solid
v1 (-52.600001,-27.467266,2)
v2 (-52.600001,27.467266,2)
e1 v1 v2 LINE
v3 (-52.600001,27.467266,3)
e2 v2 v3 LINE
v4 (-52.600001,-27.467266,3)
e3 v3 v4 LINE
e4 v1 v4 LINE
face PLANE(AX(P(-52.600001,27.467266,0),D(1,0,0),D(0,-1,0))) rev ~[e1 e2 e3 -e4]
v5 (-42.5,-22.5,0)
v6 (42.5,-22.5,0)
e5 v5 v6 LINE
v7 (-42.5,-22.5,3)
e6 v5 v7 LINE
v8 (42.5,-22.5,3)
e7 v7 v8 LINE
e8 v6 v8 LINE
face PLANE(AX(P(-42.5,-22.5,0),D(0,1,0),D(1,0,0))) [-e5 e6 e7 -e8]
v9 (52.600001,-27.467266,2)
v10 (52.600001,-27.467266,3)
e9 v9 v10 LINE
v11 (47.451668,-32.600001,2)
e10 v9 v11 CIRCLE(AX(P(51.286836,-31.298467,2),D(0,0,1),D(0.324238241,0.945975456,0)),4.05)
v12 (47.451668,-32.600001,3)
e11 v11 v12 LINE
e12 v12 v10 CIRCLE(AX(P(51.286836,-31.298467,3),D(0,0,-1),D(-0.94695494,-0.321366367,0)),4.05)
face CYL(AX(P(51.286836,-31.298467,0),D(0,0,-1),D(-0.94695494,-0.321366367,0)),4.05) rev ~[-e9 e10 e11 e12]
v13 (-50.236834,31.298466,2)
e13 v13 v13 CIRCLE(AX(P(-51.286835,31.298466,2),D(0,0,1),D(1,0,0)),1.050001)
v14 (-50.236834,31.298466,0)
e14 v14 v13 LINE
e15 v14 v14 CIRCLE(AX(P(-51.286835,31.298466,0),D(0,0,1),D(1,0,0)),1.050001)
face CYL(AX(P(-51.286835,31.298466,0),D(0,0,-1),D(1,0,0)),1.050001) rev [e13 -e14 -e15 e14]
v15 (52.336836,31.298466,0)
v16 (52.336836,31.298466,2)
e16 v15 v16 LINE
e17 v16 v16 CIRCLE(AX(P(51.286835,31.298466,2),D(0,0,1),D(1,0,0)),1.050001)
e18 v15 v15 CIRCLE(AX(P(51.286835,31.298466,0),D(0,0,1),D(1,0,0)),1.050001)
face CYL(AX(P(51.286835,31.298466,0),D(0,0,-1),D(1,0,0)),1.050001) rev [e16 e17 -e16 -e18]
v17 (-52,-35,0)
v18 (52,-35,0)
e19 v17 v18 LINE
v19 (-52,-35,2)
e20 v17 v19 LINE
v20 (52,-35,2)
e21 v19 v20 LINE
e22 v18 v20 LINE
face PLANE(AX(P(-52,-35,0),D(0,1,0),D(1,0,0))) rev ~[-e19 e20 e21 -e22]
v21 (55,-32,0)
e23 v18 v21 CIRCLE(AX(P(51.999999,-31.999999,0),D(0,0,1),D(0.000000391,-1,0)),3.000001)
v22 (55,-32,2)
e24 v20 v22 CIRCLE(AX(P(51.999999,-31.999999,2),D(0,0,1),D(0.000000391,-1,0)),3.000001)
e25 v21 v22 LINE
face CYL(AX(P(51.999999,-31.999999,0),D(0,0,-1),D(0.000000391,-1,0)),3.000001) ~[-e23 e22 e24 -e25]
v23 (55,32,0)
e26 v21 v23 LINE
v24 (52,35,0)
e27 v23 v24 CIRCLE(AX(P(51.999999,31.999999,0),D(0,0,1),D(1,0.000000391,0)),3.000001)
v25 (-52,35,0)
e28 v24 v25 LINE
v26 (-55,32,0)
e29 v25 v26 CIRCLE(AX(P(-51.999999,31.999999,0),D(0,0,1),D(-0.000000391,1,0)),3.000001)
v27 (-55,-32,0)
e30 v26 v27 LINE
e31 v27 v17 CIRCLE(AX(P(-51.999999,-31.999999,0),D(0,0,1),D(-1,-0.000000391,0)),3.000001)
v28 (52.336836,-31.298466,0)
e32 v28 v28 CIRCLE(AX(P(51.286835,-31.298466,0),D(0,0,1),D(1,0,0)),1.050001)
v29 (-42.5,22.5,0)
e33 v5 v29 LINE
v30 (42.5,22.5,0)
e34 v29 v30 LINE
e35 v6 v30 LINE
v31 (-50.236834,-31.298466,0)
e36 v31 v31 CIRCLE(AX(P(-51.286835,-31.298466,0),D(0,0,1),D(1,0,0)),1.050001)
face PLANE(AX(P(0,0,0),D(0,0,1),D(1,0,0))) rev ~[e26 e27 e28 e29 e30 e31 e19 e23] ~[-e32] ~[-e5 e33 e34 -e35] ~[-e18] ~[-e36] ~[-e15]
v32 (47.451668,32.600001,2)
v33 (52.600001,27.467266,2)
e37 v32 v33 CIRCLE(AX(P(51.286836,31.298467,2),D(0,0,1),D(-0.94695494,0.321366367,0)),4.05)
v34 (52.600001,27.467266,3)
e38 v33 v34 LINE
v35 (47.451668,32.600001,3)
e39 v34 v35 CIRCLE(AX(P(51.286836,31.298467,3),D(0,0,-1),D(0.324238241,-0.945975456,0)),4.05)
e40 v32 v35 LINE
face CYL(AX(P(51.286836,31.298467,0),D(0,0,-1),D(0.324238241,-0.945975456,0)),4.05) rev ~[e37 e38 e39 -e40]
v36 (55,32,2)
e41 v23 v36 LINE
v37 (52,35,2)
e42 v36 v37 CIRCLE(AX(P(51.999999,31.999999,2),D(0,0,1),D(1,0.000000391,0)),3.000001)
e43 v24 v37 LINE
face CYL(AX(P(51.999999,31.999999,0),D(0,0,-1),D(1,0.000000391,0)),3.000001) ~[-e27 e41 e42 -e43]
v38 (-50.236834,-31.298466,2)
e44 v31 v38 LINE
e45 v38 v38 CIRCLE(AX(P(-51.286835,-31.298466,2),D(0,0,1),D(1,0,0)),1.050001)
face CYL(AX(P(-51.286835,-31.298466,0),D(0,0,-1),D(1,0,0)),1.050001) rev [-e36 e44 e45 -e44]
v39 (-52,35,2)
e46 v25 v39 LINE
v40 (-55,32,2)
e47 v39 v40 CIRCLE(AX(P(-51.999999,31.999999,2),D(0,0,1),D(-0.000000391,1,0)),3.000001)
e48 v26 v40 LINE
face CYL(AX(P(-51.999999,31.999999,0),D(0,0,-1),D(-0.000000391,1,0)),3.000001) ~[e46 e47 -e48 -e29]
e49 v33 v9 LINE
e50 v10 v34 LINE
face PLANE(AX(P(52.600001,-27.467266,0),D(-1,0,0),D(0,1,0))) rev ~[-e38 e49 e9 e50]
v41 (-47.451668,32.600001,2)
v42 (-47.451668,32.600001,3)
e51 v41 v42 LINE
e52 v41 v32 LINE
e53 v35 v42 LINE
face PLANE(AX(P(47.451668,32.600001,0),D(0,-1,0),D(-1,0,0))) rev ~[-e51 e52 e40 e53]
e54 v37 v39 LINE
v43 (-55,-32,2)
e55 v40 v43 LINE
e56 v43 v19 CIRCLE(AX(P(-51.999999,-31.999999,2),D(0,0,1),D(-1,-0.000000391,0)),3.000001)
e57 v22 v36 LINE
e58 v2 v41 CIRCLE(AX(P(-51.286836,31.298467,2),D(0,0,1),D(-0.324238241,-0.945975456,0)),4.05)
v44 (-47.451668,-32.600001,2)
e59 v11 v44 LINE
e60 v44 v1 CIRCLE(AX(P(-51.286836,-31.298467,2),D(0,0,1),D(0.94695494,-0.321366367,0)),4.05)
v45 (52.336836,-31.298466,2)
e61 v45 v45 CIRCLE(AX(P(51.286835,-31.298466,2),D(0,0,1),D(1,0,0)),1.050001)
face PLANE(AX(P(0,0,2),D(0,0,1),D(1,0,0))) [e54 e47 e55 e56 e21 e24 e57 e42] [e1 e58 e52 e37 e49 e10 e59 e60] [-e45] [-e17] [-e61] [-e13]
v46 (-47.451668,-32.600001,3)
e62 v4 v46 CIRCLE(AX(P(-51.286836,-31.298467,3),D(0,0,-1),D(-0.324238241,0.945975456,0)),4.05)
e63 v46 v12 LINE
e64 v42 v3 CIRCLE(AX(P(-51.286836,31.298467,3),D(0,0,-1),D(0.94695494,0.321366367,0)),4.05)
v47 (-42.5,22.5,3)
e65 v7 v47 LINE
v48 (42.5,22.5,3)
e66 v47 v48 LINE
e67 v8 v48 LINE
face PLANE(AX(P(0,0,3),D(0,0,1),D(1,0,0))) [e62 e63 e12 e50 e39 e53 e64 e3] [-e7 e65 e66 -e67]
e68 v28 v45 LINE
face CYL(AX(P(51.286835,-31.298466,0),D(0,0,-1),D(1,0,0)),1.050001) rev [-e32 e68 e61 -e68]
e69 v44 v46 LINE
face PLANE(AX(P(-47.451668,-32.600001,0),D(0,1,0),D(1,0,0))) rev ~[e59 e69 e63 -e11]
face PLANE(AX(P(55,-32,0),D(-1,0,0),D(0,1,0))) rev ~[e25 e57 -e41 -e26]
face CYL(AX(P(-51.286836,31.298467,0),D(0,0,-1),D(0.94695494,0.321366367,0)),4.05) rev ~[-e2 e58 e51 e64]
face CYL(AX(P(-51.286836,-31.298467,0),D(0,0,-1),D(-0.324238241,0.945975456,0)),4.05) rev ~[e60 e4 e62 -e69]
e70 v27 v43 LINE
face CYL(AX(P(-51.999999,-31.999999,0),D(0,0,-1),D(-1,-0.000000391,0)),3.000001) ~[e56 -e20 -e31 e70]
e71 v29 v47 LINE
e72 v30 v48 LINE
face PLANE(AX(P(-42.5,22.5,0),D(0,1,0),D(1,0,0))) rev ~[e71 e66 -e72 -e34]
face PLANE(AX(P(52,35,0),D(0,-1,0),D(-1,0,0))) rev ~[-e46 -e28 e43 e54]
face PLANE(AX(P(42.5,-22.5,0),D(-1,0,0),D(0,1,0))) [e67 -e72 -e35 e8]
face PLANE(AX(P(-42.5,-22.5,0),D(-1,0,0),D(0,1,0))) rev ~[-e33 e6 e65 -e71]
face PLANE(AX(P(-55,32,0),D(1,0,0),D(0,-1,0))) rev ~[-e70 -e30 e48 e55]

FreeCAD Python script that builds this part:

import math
import FreeCAD as App
import Part
import Sketcher

V = App.Vector


def add_polygon(sketch, points):
    """Adds a closed chain of lines whose ends are joined by coincident constraints."""
    first, n = sketch.GeometryCount, len(points)
    for a, b in zip(points, points[1:] + points[:1]):
        sketch.addGeometry(Part.LineSegment(App.Vector(*a, 0), App.Vector(*b, 0)), False)
    for i in range(n):
        sketch.addConstraint(Sketcher.Constraint("Coincident", first + i, 2, first + (i + 1) % n, 1))

doc = App.newDocument("Part")
params = doc.addObject("Spreadsheet::Sheet", "Params")
for row, (alias, value) in enumerate([
    ("sketch1_radius", "3.000001 mm"),
    ("sketch1_diameter", "2.100002 mm"),
    ("sketch1_width", "104 mm"),
    ("sketch1_height", "64 mm"),
    ("sketch1_radius2", "4.05 mm"),
    ("pad1_length", "2 mm"),
    ("sketch2_width", "85 mm"),
    ("sketch2_height", "45 mm"),
    ("sketch2_radius", "4.05 mm"),
    ("pad2_length", "3 mm"),
], start=1):
    params.set(f"A{row}", alias)
    params.set(f"B{row}", "=" + value)
    params.setAlias(f"B{row}", alias)

body = doc.addObject("PartDesign::Body", "Body")

# Sketch on XY plane
sketch1 = body.newObject("Sketcher::SketchObject", "Sketch")
sketch1.AttachmentSupport = (doc.getObject("XY_Plane"), [""])
sketch1.MapMode = "FlatFace"
sketch1.addGeometry(Part.ArcOfCircle(Part.Circle(V(51.999999, 31.999999, 0), V(0, 0, 1), 3.000001), math.radians(0.000022), math.radians(89.999978)), False)
sketch1.addGeometry(Part.LineSegment(V(52, 35, 0), V(-52, 35, 0)), False)
sketch1.addGeometry(Part.ArcOfCircle(Part.Circle(V(-51.999999, 31.999999, 0), V(0, 0, 1), 3.000001), math.radians(90.000022), math.radians(179.999978)), False)
sketch1.addGeometry(Part.LineSegment(V(-55, 32, 0), V(-55, -32, 0)), False)
sketch1.addGeometry(Part.ArcOfCircle(Part.Circle(V(-51.999999, -31.999999, 0), V(0, 0, 1), 3.000001), math.radians(-179.999978), math.radians(-90.000022)), False)
sketch1.addGeometry(Part.LineSegment(V(-52, -35, 0), V(52, -35, 0)), False)
sketch1.addGeometry(Part.ArcOfCircle(Part.Circle(V(51.999999, -31.999999, 0), V(0, 0, 1), 3.000001), math.radians(-89.999978), math.radians(-0.000022)), False)
sketch1.addGeometry(Part.LineSegment(V(55, -32, 0), V(55, 32, 0)), False)
sketch1.addGeometry(Part.Circle(V(-51.286835, -31.298466, 0), V(0, 0, 1), 1.050001), False)
sketch1.addGeometry(Part.Circle(V(51.286835, -31.298466, 0), V(0, 0, 1), 1.050001), False)
sketch1.addGeometry(Part.Circle(V(-51.286835, 31.298466, 0), V(0, 0, 1), 1.050001), False)
sketch1.addGeometry(Part.LineSegment(V(-47.451668, 32.600001, 0), V(47.451668, 32.600001, 0)), False)
sketch1.addGeometry(Part.ArcOfCircle(Part.Circle(V(51.286836, 31.298467, 0), V(0, 0, 1), 4.05), math.radians(161.254423), math.radians(288.91943)), False)
sketch1.addGeometry(Part.LineSegment(V(52.600001, 27.467266, 0), V(52.600001, -27.467266, 0)), False)
sketch1.addGeometry(Part.ArcOfCircle(Part.Circle(V(51.286836, -31.298467, 0), V(0, 0, 1), 4.05), math.radians(71.08057), math.radians(198.745577)), False)
sketch1.addGeometry(Part.LineSegment(V(47.451668, -32.600001, 0), V(-47.451668, -32.600001, 0)), False)
sketch1.addGeometry(Part.ArcOfCircle(Part.Circle(V(-51.286836, -31.298467, 0), V(0, 0, 1), 4.05), math.radians(-18.745577), math.radians(108.91943)), False)
sketch1.addGeometry(Part.LineSegment(V(-52.600001, -27.467266, 0), V(-52.600001, 27.467266, 0)), False)
sketch1.addGeometry(Part.ArcOfCircle(Part.Circle(V(-51.286836, 31.298467, 0), V(0, 0, 1), 4.05), math.radians(-108.91943), math.radians(18.745577)), False)
sketch1.addGeometry(Part.Circle(V(51.286835, 31.298466, 0), V(0, 0, 1), 1.050001), False)
sketch1.addConstraint(Sketcher.Constraint("Tangent", 0, 2, 1, 1))
sketch1.addConstraint(Sketcher.Constraint("Tangent", 1, 2, 2, 1))
sketch1.addConstraint(Sketcher.Constraint("Tangent", 2, 2, 3, 1))
sketch1.addConstraint(Sketcher.Constraint("Tangent", 3, 2, 4, 1))
sketch1.addConstraint(Sketcher.Constraint("Tangent", 4, 2, 5, 1))
sketch1.addConstraint(Sketcher.Constraint("Tangent", 5, 2, 6, 1))
sketch1.addConstraint(Sketcher.Constraint("Tangent", 6, 2, 7, 1))
sketch1.addConstraint(Sketcher.Constraint("Tangent", 7, 2, 0, 1))
sketch1.addConstraint(Sketcher.Constraint("Coincident", 11, 2, 12, 1))
sketch1.addConstraint(Sketcher.Constraint("Coincident", 12, 2, 13, 1))
sketch1.addConstraint(Sketcher.Constraint("Coincident", 13, 2, 14, 1))
sketch1.addConstraint(Sketcher.Constraint("Coincident", 14, 2, 15, 1))
sketch1.addConstraint(Sketcher.Constraint("Coincident", 15, 2, 16, 1))
sketch1.addConstraint(Sketcher.Constraint("Coincident", 16, 2, 17, 1))
sketch1.addConstraint(Sketcher.Constraint("Coincident", 17, 2, 18, 1))
sketch1.addConstraint(Sketcher.Constraint("Coincident", 18, 2, 11, 1))
sketch1.addConstraint(Sketcher.Constraint("Horizontal", 1))
sketch1.addConstraint(Sketcher.Constraint("Vertical", 3))
sketch1.addConstraint(Sketcher.Constraint("Horizontal", 5))
sketch1.addConstraint(Sketcher.Constraint("Vertical", 7))
sketch1.addConstraint(Sketcher.Constraint("Horizontal", 11))
sketch1.addConstraint(Sketcher.Constraint("Vertical", 13))
sketch1.addConstraint(Sketcher.Constraint("Horizontal", 15))
sketch1.addConstraint(Sketcher.Constraint("Vertical", 17))
sketch1.addConstraint(Sketcher.Constraint("Coincident", 14, 3, 9, 3))
sketch1.addConstraint(Sketcher.Constraint("Coincident", 16, 3, 8, 3))
sketch1.addConstraint(Sketcher.Constraint("Coincident", 18, 3, 10, 3))
sketch1.addConstraint(Sketcher.Constraint("Coincident", 19, 3, 12, 3))
sketch1.addConstraint(Sketcher.Constraint("Equal", 0, 2))
sketch1.addConstraint(Sketcher.Constraint("Equal", 2, 4))
sketch1.addConstraint(Sketcher.Constraint("Equal", 4, 6))
sketch1.addConstraint(Sketcher.Constraint("Equal", 8, 9))
sketch1.addConstraint(Sketcher.Constraint("Equal", 9, 10))
sketch1.addConstraint(Sketcher.Constraint("Equal", 12, 14))
sketch1.addConstraint(Sketcher.Constraint("Equal", 14, 16))
sketch1.addConstraint(Sketcher.Constraint("Equal", 16, 18))
sketch1.addConstraint(Sketcher.Constraint("Equal", 10, 19))
sketch1.addConstraint(Sketcher.Constraint("Symmetric", 0, 3, 4, 3, -1, 1))
sketch1.addConstraint(Sketcher.Constraint("Symmetric", 9, 3, 10, 3, -1, 1))
sketch1.addConstraint(Sketcher.Constraint("Symmetric", 8, 3, 12, 3, -1, 1))
sketch1.addConstraint(Sketcher.Constraint("Symmetric", 8, 3, 9, 3, -2))
sketch1.addConstraint(Sketcher.Constraint("Horizontal", 13, 2, 16, 2))
sketch1.addConstraint(Sketcher.Constraint("Vertical", 11, 2, 14, 2))
sketch1.addConstraint(Sketcher.Constraint("Radius", 0, 3.000001))
sketch1.addConstraint(Sketcher.Constraint("Diameter", 8, 2.100002))
sketch1.addConstraint(Sketcher.Constraint("DistanceX", 1, 2, 1, 1, 104.0))
sketch1.addConstraint(Sketcher.Constraint("DistanceY", 3, 2, 3, 1, 64.0))
sketch1.addConstraint(Sketcher.Constraint("Radius", 12, 4.05))
sketch1.addConstraint(Sketcher.Constraint("DistanceY", -1, 1, 11, 2, 32.600001))
sketch1.addConstraint(Sketcher.Constraint("DistanceX", -1, 1, 12, 2, 52.600001))
sketch1.addConstraint(Sketcher.Constraint("DistanceY", 13, 2, 13, 1, 54.934532))
sketch1.addConstraint(Sketcher.Constraint("DistanceY", 12, 2, 19, 3, 3.8312))
sketch1.setExpression("Constraints[43]", "Params.sketch1_radius")
sketch1.setExpression("Constraints[44]", "Params.sketch1_diameter")
sketch1.setExpression("Constraints[45]", "Params.sketch1_width")
sketch1.setExpression("Constraints[46]", "Params.sketch1_height")
sketch1.setExpression("Constraints[47]", "Params.sketch1_radius2")
pad1 = body.newObject("PartDesign::Pad", "Pad")
pad1.Profile = sketch1
pad1.setExpression("Length", "Params.pad1_length")

# Sketch on XY plane
sketch2 = body.newObject("Sketcher::SketchObject", "Sketch001")
sketch2.AttachmentSupport = (doc.getObject("XY_Plane"), [""])
sketch2.MapMode = "FlatFace"
sketch2.addGeometry(Part.LineSegment(V(52.600001, -27.467266, 0), V(52.600001, 27.467266, 0)), False)  # 0
sketch2.addGeometry(Part.ArcOfCircle(Part.Circle(V(51.286836, 31.298467, 0), V(0, 0, 1), 4.05), math.radians(161.254423), math.radians(288.91943)), False)  # 1
sketch2.addGeometry(Part.LineSegment(V(47.451668, 32.600001, 0), V(-47.451668, 32.600001, 0)), False)  # 2
sketch2.addGeometry(Part.ArcOfCircle(Part.Circle(V(-51.286836, 31.298467, 0), V(0, 0, 1), 4.05), math.radians(-108.91943), math.radians(18.745577)), False)  # 3
sketch2.addGeometry(Part.LineSegment(V(-52.600001, 27.467266, 0), V(-52.600001, -27.467266, 0)), False)  # 4
sketch2.addGeometry(Part.ArcOfCircle(Part.Circle(V(-51.286836, -31.298467, 0), V(0, 0, 1), 4.05), math.radians(-18.745577), math.radians(108.91943)), False)  # 5
sketch2.addGeometry(Part.LineSegment(V(-47.451668, -32.600001, 0), V(47.451668, -32.600001, 0)), False)  # 6
sketch2.addGeometry(Part.ArcOfCircle(Part.Circle(V(51.286836, -31.298467, 0), V(0, 0, 1), 4.05), math.radians(71.08057), math.radians(198.745577)), False)  # 7
add_polygon(sketch2, [(42.5, -22.5), (-42.5, -22.5), (-42.5, 22.5), (42.5, 22.5)])  # lines 8-11
sketch2.addConstraint(Sketcher.Constraint("Coincident", 0, 2, 1, 2))
sketch2.addConstraint(Sketcher.Constraint("Coincident", 1, 1, 2, 1))
sketch2.addConstraint(Sketcher.Constraint("Coincident", 2, 2, 3, 2))
sketch2.addConstraint(Sketcher.Constraint("Coincident", 3, 1, 4, 1))
sketch2.addConstraint(Sketcher.Constraint("Coincident", 4, 2, 5, 2))
sketch2.addConstraint(Sketcher.Constraint("Coincident", 5, 1, 6, 1))
sketch2.addConstraint(Sketcher.Constraint("Coincident", 6, 2, 7, 2))
sketch2.addConstraint(Sketcher.Constraint("Coincident", 7, 1, 0, 1))
sketch2.addConstraint(Sketcher.Constraint("Vertical", 0))
sketch2.addConstraint(Sketcher.Constraint("Horizontal", 2))
sketch2.addConstraint(Sketcher.Constraint("Vertical", 4))
sketch2.addConstraint(Sketcher.Constraint("Horizontal", 6))
sketch2.addConstraint(Sketcher.Constraint("Horizontal", 8))
sketch2.addConstraint(Sketcher.Constraint("Vertical", 9))
sketch2.addConstraint(Sketcher.Constraint("Horizontal", 10))
sketch2.addConstraint(Sketcher.Constraint("Vertical", 11))
sketch2.addConstraint(Sketcher.Constraint("Equal", 1, 3))
sketch2.addConstraint(Sketcher.Constraint("Equal", 3, 5))
sketch2.addConstraint(Sketcher.Constraint("Equal", 5, 7))
sketch2.addConstraint(Sketcher.Constraint("Symmetric", 1, 3, 5, 3, -1, 1))
sketch2.addConstraint(Sketcher.Constraint("Symmetric", 3, 3, 7, 3, -1, 1))
sketch2.addConstraint(Sketcher.Constraint("Symmetric", 8, 2, 10, 2, -1, 1))
sketch2.addConstraint(Sketcher.Constraint("Symmetric", 1, 3, 3, 3, -2))
sketch2.addConstraint(Sketcher.Constraint("Horizontal", 0, 2, 3, 1))
sketch2.addConstraint(Sketcher.Constraint("Vertical", 2, 2, 5, 1))
sketch2.addConstraint(Sketcher.Constraint("DistanceX", 8, 2, 8, 1, 85.0))
sketch2.addConstraint(Sketcher.Constraint("DistanceY", 9, 1, 9, 2, 45.0))
sketch2.addConstraint(Sketcher.Constraint("Radius", 1, 4.05))
sketch2.addConstraint(Sketcher.Constraint("DistanceX", -1, 1, 0, 2, 52.600001))
sketch2.addConstraint(Sketcher.Constraint("DistanceY", -1, 1, 1, 1, 32.600001))
sketch2.addConstraint(Sketcher.Constraint("DistanceY", 0, 1, 0, 2, 54.934532))
sketch2.addConstraint(Sketcher.Constraint("DistanceY", 0, 2, 1, 3, 3.831201))
sketch2.setExpression("Constraints[29]", "Params.sketch2_width")
sketch2.setExpression("Constraints[30]", "Params.sketch2_height")
sketch2.setExpression("Constraints[31]", "Params.sketch2_radius")
pad2 = body.newObject("PartDesign::Pad", "Pad001")
pad2.Profile = sketch2
pad2.setExpression("Length", "Params.pad2_length")

doc.recompute()
